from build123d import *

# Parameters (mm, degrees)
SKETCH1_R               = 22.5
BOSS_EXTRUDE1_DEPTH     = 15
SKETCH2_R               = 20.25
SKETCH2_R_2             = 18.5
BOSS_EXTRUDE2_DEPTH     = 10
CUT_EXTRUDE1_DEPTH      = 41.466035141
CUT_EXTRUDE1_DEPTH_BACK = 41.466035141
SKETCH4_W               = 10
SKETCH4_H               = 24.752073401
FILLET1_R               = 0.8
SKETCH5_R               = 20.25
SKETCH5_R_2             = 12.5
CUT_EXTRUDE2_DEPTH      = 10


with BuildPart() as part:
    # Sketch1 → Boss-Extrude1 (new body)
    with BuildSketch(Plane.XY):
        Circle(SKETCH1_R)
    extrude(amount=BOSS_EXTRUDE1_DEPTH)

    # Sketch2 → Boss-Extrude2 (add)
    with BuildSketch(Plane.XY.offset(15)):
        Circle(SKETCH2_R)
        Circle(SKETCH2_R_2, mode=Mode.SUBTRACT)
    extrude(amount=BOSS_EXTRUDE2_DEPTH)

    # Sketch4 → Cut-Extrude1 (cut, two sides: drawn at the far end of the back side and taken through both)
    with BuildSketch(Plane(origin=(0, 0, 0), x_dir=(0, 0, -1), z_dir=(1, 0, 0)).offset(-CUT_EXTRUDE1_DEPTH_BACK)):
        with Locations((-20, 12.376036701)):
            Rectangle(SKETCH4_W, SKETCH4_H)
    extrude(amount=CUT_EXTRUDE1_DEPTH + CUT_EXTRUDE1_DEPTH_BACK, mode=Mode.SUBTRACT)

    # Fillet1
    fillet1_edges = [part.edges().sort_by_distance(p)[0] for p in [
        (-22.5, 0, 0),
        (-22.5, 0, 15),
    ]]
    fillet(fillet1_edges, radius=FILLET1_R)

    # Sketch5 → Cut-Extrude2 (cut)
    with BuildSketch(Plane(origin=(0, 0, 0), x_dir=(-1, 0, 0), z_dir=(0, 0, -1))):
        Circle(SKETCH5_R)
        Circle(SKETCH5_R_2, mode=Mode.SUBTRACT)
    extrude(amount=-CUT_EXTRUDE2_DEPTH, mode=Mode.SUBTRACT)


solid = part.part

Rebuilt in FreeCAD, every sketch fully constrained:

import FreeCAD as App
import Part
import Sketcher
from FreeCAD import Vector
Q = App.Units.Quantity


def edges_at(feature, points):
    """Names of the edges that pass closest to the given points."""
    edges = feature.Shape.Edges
    near = lambda p: min(range(len(edges)), key=lambda i: edges[i].distToShape(Part.Vertex(*p))[0])
    return sorted({f"Edge{near(p) + 1}" for p in points})


def add_polygon(sketch, points):
    """Adds a closed chain of lines whose ends are joined by coincident constraints."""
    first, n = sketch.GeometryCount, len(points)
    for a, b in zip(points, points[1:] + points[:1]):
        sketch.addGeometry(Part.LineSegment(App.Vector(*a, 0), App.Vector(*b, 0)), False)
    for i in range(n):
        sketch.addConstraint(Sketcher.Constraint("Coincident", first + i, 2, first + (i + 1) % n, 1))

doc = App.newDocument("Part")
body = doc.addObject("PartDesign::Body", "Body")

# Sketch on XY plane
sketch1 = body.newObject("Sketcher::SketchObject", "Sketch")
sketch1.AttachmentSupport = (doc.getObject("XY_Plane"), [""])
sketch1.MapMode = "FlatFace"
sketch1.addGeometry(Part.Circle(Vector(0, 0, 0), Vector(0, 0, 1), 22), False)
sketch1.addConstraint([
    Sketcher.Constraint("Coincident", 0, 3, -1, 1),
    Sketcher.Constraint("Diameter", 0, Q("45 mm")),
])
pad1 = body.newObject("PartDesign::Pad", "Pad")
pad1.Profile = sketch1
pad1.Length = 15

# Sketch on XY plane
sketch2 = body.newObject("Sketcher::SketchObject", "Sketch001")
sketch2.AttachmentSupport = (doc.getObject("XY_Plane"), [""])
sketch2.MapMode = "FlatFace"
sketch2.AttachmentOffset = App.Placement(Vector(0, 0, 15), App.Rotation())
sketch2.addGeometry([
    Part.Circle(Vector(0, 0, 0), Vector(0, 0, 1), 20),
    Part.Circle(Vector(0, 0, 0), Vector(0, 0, 1), 18),
], False)
sketch2.addConstraint([
    Sketcher.Constraint("Coincident", 0, 3, -1, 1),
    Sketcher.Constraint("Coincident", 1, 3, -1, 1),
    Sketcher.Constraint("Diameter", 1, Q("37 mm")),
    Sketcher.Constraint("Diameter", 0, Q("40.5 mm")),
])
pad2 = body.newObject("PartDesign::Pad", "Pad001")
pad2.Profile = sketch2
pad2.Length = 10

# Sketch on YZ plane
sketch3 = body.newObject("Sketcher::SketchObject", "Sketch002")
sketch3.AttachmentSupport = (doc.getObject("YZ_Plane"), [""])
sketch3.MapMode = "FlatFace"
add_polygon(sketch3, [(25, 25), (0, 25), (0, 15), (25, 15)])  # lines 0-3
sketch3.addConstraint([
    Sketcher.Constraint("Horizontal", 0),
    Sketcher.Constraint("Vertical", 1),
    Sketcher.Constraint("Horizontal", 2),
    Sketcher.Constraint("Vertical", 3),
    Sketcher.Constraint("PointOnObject", 0, 2, -2),
    Sketcher.Constraint("DistanceY", 1, 2, 1, 1, Q("10 mm")),
    Sketcher.Constraint("DistanceY", -1, 1, 0, 2, Q("25 mm")),
    Sketcher.Constraint("DistanceX", 0, 2, 0, 1, Q("24.752073 mm")),
])
pocket1 = body.newObject("PartDesign::Pocket", "Pocket")
pocket1.Profile = sketch3
pocket1.Type = "ThroughAll"
pocket1.Midplane = True
doc.recompute()

fillet = body.newObject("PartDesign::Fillet", "Fillet")
fillet.Base = (pocket1, edges_at(pocket1, [(-22.5, 0, 0), (-22.5, 0, 15)]))
fillet.Radius = 0.8

# Sketch on XY plane
sketch4 = body.newObject("Sketcher::SketchObject", "Sketch003")
sketch4.AttachmentSupport = (doc.getObject("XY_Plane"), [""])
sketch4.MapMode = "FlatFace"
sketch4.addGeometry([
    Part.Circle(Vector(0, 0, 0), Vector(0, 0, 1), 20),
    Part.Circle(Vector(0, 0, 0), Vector(0, 0, 1), 12),
], False)
sketch4.addConstraint([
    Sketcher.Constraint("Coincident", 0, 3, -1, 1),
    Sketcher.Constraint("Coincident", 1, 3, -1, 1),
    Sketcher.Constraint("Diameter", 1, Q("25 mm")),
    Sketcher.Constraint("Diameter", 0, Q("40.5 mm")),
])
pocket2 = body.newObject("PartDesign::Pocket", "Pocket001")
pocket2.Profile = sketch4
pocket2.Length = 10
pocket2.Reversed = True

doc.recompute()
